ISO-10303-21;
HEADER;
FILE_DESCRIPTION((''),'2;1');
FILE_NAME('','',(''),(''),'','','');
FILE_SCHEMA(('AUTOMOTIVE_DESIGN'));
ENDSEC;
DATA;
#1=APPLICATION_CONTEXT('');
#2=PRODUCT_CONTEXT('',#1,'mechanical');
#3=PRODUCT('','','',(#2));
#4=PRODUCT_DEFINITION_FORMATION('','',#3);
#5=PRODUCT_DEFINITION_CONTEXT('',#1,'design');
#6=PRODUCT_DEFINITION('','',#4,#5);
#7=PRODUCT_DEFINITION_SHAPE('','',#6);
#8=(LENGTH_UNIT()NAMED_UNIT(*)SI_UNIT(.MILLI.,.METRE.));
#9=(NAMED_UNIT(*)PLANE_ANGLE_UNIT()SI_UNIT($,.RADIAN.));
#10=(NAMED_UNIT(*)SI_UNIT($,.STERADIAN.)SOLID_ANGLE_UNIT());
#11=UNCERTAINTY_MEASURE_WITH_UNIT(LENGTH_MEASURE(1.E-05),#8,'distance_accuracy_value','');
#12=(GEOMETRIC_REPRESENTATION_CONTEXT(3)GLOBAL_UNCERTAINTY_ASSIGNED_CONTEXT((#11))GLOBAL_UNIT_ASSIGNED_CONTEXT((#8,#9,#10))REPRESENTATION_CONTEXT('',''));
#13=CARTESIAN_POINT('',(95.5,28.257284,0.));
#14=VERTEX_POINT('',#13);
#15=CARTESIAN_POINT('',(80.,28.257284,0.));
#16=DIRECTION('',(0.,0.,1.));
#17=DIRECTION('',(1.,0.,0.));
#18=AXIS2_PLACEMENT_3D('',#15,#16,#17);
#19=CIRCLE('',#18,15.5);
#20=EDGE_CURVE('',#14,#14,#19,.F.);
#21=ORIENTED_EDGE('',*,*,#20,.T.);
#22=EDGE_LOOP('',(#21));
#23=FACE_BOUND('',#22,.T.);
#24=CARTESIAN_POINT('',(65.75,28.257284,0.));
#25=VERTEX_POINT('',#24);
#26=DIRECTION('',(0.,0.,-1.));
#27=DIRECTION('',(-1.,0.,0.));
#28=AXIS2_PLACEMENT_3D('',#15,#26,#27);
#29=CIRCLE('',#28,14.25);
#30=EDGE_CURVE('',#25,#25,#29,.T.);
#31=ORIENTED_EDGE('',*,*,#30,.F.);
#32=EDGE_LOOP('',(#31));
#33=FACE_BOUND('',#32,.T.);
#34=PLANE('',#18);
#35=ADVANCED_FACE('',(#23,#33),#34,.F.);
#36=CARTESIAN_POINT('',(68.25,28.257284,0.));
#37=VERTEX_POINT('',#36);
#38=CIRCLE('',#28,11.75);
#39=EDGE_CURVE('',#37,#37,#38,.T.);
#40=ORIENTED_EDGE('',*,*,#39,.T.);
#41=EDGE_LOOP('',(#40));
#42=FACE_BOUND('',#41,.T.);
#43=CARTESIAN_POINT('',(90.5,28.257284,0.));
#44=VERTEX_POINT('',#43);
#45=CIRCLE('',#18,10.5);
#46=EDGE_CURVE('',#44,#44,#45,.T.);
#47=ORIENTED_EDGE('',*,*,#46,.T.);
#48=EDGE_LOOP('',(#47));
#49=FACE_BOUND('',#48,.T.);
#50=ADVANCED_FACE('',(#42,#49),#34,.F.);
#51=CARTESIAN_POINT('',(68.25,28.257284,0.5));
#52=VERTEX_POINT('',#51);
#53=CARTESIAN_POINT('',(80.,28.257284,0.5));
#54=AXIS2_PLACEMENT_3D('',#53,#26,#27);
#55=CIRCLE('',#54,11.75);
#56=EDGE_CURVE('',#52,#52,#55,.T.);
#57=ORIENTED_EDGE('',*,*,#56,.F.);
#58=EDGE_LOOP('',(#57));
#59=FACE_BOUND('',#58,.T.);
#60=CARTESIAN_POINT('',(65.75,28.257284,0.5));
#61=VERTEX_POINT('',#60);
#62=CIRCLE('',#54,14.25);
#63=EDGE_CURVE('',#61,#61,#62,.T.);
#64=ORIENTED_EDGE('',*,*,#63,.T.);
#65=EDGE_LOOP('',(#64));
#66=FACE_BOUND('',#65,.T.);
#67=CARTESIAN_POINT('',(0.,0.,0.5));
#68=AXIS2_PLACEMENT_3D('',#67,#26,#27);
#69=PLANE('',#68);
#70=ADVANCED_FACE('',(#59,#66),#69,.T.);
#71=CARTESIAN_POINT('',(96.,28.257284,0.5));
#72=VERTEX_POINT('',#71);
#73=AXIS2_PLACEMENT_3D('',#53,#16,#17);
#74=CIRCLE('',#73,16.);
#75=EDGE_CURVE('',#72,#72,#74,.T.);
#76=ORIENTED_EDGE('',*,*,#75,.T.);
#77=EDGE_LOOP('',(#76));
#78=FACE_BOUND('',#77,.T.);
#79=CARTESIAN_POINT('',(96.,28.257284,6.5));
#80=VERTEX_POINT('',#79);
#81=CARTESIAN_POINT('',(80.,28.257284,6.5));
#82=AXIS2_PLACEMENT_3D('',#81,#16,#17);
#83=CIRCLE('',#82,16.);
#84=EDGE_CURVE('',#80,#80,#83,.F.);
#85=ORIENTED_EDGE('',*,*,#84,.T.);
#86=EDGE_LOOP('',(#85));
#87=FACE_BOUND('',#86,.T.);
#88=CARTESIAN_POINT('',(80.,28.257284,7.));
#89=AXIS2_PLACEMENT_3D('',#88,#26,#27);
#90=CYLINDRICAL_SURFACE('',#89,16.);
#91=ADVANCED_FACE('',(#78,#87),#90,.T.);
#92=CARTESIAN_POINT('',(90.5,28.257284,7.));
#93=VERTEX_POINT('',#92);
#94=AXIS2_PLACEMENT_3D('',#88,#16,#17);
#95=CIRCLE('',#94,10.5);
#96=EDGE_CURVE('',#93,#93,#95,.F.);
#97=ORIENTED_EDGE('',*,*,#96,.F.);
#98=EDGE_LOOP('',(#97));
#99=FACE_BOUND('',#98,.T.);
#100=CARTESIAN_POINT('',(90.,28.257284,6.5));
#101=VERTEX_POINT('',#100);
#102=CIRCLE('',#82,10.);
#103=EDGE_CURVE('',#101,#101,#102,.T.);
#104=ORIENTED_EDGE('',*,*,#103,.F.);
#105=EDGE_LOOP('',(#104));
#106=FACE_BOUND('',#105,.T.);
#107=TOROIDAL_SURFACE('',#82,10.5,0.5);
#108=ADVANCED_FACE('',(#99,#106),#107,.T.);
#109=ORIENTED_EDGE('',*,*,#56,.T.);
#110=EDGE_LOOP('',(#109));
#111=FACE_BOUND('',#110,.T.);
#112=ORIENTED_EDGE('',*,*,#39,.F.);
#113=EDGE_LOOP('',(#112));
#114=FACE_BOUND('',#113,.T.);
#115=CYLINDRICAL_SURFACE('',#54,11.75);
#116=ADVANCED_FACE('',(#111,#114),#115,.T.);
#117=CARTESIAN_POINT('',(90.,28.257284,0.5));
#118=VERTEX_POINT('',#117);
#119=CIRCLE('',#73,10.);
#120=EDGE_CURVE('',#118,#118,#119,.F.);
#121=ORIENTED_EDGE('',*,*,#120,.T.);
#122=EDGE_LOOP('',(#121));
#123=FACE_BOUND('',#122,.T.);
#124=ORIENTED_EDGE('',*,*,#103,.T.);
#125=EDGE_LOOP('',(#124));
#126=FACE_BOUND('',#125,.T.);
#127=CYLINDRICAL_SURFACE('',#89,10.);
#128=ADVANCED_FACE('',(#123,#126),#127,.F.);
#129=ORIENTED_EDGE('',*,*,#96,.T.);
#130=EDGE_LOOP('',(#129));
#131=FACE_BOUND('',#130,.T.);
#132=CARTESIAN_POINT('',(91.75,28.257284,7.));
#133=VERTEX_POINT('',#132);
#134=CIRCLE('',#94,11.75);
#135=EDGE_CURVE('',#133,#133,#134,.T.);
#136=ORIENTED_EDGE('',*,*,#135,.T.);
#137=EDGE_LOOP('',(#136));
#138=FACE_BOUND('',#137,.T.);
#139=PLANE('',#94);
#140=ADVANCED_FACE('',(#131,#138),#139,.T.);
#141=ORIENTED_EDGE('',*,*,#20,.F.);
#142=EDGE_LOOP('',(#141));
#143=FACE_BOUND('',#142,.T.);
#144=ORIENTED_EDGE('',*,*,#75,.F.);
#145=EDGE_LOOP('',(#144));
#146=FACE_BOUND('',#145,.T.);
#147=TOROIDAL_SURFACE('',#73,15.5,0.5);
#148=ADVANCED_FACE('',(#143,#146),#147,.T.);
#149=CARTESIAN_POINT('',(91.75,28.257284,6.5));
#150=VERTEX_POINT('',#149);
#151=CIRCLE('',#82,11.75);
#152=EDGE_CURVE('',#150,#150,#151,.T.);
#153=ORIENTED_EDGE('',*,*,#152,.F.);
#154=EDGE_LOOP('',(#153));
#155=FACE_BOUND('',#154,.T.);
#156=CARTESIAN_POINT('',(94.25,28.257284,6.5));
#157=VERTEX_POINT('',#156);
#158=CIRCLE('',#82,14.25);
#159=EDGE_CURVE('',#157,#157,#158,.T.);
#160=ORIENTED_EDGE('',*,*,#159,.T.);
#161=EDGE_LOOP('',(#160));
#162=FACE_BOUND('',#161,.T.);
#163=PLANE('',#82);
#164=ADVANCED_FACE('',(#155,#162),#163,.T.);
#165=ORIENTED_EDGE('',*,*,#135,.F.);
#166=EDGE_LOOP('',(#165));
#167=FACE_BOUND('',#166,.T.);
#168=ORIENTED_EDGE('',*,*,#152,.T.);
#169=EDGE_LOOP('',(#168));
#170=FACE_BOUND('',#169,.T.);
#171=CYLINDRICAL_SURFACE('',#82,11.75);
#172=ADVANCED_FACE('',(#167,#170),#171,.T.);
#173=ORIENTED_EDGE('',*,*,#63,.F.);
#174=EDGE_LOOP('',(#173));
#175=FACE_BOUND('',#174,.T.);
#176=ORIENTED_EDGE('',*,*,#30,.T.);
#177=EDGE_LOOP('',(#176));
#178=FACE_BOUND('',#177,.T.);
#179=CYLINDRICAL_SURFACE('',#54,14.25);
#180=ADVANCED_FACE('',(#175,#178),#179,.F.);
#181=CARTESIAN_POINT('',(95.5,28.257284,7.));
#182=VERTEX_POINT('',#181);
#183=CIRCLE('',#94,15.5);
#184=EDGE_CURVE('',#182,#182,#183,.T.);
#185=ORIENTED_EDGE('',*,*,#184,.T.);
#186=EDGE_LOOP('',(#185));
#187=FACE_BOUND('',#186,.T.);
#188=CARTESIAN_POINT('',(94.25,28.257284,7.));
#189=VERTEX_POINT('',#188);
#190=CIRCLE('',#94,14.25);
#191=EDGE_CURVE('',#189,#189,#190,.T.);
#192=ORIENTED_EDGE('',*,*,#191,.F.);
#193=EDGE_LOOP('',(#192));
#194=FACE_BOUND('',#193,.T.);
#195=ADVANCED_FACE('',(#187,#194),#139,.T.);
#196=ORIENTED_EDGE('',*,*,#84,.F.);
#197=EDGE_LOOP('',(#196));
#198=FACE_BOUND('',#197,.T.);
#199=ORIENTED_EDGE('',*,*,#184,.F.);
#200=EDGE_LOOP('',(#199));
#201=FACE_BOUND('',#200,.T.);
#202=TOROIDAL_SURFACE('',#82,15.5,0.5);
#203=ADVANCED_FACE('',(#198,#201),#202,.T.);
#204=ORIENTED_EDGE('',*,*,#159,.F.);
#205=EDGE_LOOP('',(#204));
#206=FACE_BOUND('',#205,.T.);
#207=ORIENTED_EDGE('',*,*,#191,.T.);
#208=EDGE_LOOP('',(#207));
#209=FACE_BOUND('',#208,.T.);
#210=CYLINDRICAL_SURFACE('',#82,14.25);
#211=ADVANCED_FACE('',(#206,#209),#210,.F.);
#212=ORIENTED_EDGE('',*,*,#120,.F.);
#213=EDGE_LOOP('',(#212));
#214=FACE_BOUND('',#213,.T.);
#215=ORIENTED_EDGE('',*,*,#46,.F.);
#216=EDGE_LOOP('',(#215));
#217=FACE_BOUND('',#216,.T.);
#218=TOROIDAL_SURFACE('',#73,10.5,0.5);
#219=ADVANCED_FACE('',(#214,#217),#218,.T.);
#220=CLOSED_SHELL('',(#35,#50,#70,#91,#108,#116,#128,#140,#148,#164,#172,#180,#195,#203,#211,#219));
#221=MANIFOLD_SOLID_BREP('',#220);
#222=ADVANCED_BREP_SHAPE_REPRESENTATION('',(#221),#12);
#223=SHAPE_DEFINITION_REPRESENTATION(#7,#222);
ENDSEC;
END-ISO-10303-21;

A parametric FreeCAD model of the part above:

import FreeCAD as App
import Part
import Sketcher


def edges_at(feature, points):
    """Names of the edges that pass closest to the given points."""
    edges = feature.Shape.Edges
    near = lambda p: min(range(len(edges)), key=lambda i: edges[i].distToShape(Part.Vertex(*p))[0])
    return sorted({f"Edge{near(p) + 1}" for p in points})

doc = App.newDocument("Part")
body = doc.addObject("PartDesign::Body", "Body")

sketch1 = body.newObject("Sketcher::SketchObject", "Sketch")
sketch1.AttachmentSupport = (doc.getObject("XY_Plane"), [""])
sketch1.MapMode = "FlatFace"
sketch1.addGeometry(Part.Circle(App.Vector(80, 28, 0), App.Vector(0, 0, 1), 16), False)
sketch1.addGeometry(Part.Circle(App.Vector(80, 28, 0), App.Vector(0, 0, 1), 10), False)
sketch1.addConstraint(Sketcher.Constraint("Coincident", 1, 3, 0, 3))
sketch1.addConstraint(Sketcher.Constraint("Diameter", 0, 32.0))
sketch1.addConstraint(Sketcher.Constraint("Diameter", 1, 20.0))
sketch1.addConstraint(Sketcher.Constraint("DistanceX", -1, 1, 0, 3, 80.0))
sketch1.addConstraint(Sketcher.Constraint("DistanceY", -1, 1, 0, 3, 28.257284))
pad1 = body.newObject("PartDesign::Pad", "Pad")
pad1.Profile = sketch1
pad1.Length = 7
doc.recompute()

fillet = body.newObject("PartDesign::Fillet", "Fillet")
fillet.Base = (pad1, edges_at(pad1, [
    (64, 28.257, 0),
    (64, 28.257, 7),
    (70, 28.257, 0),
    (70, 28.257, 7),
]))
fillet.Radius = 0.5

sketch2 = body.newObject("Sketcher::SketchObject", "Sketch001")
sketch2.AttachmentSupport = (doc.getObject("XY_Plane"), [""])
sketch2.MapMode = "FlatFace"
sketch2.addGeometry(Part.Circle(App.Vector(80, 28, 0), App.Vector(0, 0, 1), 14), False)
sketch2.addGeometry(Part.Circle(App.Vector(80, 28, 0), App.Vector(0, 0, 1), 12), False)
sketch2.addConstraint(Sketcher.Constraint("Coincident", 1, 3, 0, 3))
sketch2.addConstraint(Sketcher.Constraint("Diameter", 0, 28.5))
sketch2.addConstraint(Sketcher.Constraint("Diameter", 1, 23.5))
sketch2.addConstraint(Sketcher.Constraint("DistanceX", -1, 1, 0, 3, 80.0))
sketch2.addConstraint(Sketcher.Constraint("DistanceY", -1, 1, 0, 3, 28.257284))
pocket1 = body.newObject("PartDesign::Pocket", "Pocket")
pocket1.Profile = sketch2
pocket1.Length = 0.5
pocket1.Reversed = True

sketch3 = body.newObject("Sketcher::SketchObject", "Sketch002")
sketch3.AttachmentSupport = (doc.getObject("XY_Plane"), [""])
sketch3.MapMode = "FlatFace"
sketch3.AttachmentOffset = App.Placement(App.Vector(0, 0, 7), App.Rotation())
sketch3.addGeometry(Part.Circle(App.Vector(80, 28, 0), App.Vector(0, 0, 1), 14), False)
sketch3.addGeometry(Part.Circle(App.Vector(80, 28, 0), App.Vector(0, 0, 1), 12), False)
sketch3.addConstraint(Sketcher.Constraint("Coincident", 1, 3, 0, 3))
sketch3.addConstraint(Sketcher.Constraint("Diameter", 0, 28.5))
sketch3.addConstraint(Sketcher.Constraint("Diameter", 1, 23.5))
sketch3.addConstraint(Sketcher.Constraint("DistanceX", -1, 1, 0, 3, 80.0))
sketch3.addConstraint(Sketcher.Constraint("DistanceY", -1, 1, 0, 3, 28.257284))
pocket2 = body.newObject("PartDesign::Pocket", "Pocket001")
pocket2.Profile = sketch3
pocket2.Length = 0.5

doc.recompute()
